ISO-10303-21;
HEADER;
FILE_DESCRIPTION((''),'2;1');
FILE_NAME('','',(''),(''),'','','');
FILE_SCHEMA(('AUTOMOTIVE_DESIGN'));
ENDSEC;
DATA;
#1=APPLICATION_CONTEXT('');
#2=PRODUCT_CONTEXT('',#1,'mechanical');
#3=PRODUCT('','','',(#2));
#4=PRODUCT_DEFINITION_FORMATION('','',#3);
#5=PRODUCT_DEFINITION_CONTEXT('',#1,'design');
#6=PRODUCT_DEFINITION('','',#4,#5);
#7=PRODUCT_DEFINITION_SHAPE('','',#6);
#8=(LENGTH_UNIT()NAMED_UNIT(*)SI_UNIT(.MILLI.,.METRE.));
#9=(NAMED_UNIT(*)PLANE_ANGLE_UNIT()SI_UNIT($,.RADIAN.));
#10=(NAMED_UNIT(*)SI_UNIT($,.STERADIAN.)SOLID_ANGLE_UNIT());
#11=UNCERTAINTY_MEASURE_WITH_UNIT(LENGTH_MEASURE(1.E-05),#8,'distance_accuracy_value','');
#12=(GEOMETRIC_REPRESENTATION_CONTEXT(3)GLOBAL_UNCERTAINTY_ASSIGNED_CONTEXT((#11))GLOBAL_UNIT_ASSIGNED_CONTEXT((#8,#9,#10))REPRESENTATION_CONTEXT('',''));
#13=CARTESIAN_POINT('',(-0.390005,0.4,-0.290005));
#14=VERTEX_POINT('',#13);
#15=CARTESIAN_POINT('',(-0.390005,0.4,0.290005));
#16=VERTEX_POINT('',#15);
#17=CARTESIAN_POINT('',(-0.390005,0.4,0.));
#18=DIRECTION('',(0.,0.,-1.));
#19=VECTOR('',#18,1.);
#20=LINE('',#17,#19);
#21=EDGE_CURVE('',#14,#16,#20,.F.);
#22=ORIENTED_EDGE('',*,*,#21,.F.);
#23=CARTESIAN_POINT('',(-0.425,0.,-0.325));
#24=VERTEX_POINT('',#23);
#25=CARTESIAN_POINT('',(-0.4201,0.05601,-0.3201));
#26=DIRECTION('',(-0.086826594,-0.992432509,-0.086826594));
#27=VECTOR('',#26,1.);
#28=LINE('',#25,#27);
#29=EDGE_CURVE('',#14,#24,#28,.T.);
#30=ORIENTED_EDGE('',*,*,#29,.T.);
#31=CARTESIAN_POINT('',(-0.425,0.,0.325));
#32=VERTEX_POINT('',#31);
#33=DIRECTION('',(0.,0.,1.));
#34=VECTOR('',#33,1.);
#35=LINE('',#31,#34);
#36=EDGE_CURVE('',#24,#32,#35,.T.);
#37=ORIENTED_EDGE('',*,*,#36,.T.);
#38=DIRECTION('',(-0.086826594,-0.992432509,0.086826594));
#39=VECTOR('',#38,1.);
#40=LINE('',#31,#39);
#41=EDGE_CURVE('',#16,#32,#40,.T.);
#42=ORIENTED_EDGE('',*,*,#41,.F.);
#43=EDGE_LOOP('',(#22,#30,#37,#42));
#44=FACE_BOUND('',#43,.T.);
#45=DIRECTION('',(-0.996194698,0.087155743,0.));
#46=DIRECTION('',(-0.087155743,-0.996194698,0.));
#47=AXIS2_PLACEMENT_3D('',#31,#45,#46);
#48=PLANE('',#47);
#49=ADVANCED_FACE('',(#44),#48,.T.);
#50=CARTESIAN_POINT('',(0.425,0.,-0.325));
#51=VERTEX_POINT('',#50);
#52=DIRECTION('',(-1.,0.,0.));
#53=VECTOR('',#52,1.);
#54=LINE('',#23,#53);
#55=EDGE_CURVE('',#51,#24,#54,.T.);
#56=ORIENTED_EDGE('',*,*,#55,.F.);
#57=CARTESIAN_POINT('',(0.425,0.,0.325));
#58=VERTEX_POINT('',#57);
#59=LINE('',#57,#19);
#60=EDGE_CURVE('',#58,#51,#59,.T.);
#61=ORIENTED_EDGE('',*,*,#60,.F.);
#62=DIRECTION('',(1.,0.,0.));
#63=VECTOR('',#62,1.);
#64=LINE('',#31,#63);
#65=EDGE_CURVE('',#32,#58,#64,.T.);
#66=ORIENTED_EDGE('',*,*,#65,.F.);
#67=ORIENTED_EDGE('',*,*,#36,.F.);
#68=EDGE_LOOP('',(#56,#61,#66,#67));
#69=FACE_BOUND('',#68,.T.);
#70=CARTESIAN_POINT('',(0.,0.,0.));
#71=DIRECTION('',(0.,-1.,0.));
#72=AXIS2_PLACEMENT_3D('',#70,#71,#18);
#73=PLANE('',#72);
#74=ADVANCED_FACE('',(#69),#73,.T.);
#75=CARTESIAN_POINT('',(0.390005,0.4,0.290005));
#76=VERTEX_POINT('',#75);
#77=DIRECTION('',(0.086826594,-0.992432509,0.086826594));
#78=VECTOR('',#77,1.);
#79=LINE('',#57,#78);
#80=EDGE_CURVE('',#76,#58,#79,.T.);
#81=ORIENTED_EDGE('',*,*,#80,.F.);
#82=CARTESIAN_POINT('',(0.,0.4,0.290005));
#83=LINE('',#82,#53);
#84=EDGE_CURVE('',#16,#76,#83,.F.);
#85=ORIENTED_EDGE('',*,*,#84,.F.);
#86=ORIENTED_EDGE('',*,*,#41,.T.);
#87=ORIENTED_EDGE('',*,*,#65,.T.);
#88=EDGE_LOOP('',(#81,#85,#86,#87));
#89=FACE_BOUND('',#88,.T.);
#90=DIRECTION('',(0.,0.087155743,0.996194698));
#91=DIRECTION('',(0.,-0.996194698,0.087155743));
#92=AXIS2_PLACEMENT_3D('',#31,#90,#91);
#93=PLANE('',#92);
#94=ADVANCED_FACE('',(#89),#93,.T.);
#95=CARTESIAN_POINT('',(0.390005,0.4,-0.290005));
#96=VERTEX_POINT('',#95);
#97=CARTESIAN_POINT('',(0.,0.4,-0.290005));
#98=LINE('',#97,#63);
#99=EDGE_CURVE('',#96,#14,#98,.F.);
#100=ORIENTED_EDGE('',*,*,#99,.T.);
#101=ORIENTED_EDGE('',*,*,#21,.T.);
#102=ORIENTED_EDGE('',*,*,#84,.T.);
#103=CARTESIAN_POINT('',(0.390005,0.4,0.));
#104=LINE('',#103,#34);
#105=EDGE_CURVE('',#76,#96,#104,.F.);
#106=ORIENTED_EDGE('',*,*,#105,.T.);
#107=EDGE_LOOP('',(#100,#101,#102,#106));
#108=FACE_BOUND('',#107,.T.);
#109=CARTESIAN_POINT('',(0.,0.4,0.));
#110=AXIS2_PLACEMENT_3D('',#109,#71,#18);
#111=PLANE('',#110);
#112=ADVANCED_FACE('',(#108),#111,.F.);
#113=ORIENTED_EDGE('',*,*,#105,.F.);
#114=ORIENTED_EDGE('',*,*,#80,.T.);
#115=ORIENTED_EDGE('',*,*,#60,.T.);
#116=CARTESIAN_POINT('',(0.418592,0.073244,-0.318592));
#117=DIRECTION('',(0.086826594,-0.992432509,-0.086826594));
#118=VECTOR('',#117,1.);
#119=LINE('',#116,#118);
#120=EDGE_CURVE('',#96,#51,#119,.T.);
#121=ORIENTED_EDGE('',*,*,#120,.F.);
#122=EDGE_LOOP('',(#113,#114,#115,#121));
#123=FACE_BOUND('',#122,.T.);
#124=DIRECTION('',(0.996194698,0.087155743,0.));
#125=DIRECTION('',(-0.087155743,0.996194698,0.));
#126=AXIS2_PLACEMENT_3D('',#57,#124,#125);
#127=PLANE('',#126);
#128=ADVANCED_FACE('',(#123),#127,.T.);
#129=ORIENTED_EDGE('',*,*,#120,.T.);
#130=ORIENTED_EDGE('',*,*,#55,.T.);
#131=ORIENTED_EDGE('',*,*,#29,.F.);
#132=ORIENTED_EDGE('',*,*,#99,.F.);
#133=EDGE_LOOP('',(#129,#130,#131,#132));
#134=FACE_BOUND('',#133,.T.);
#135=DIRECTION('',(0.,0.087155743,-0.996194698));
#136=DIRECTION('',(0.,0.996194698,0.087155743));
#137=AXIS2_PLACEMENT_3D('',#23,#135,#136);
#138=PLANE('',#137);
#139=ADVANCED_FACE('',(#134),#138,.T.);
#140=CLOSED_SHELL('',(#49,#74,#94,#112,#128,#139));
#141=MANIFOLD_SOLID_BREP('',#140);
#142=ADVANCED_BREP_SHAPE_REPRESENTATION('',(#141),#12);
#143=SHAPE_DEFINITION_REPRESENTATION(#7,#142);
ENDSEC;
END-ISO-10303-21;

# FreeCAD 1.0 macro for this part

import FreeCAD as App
import Part
import Sketcher
from FreeCAD import Vector
Q = App.Units.Quantity


def add_polygon(sketch, points):
    """Adds a closed chain of lines whose ends are joined by coincident constraints."""
    first, n = sketch.GeometryCount, len(points)
    for a, b in zip(points, points[1:] + points[:1]):
        sketch.addGeometry(Part.LineSegment(App.Vector(*a, 0), App.Vector(*b, 0)), False)
    for i in range(n):
        sketch.addConstraint(Sketcher.Constraint("Coincident", first + i, 2, first + (i + 1) % n, 1))

doc = App.newDocument("Part")
body = doc.addObject("PartDesign::Body", "Body")

sketch1 = doc.addObject("Sketcher::SketchObject", "Sketch")
body.addObject(sketch1)
sketch1.AttachmentSupport = (doc.XZ_Plane, [""])
sketch1.MapMode = "FlatFace"
add_polygon(sketch1, [(-0.425, -0.325), (-0.425, 0.325), (0.425, 0.325), (0.425, -0.325)])
sketch1.addConstraint(Sketcher.Constraint("Vertical", 0))
sketch1.addConstraint(Sketcher.Constraint("Horizontal", 1))
sketch1.addConstraint(Sketcher.Constraint("Vertical", 2))
sketch1.addConstraint(Sketcher.Constraint("Horizontal", 3))
sketch1.addConstraint(Sketcher.Constraint("Symmetric", 0, 2, 2, 2, -1, 1))
sketch1.addConstraint(Sketcher.Constraint("DistanceX", 1, 1, 1, 2, Q("0.85 mm")))
sketch1.addConstraint(Sketcher.Constraint("DistanceY", 0, 1, 0, 2, Q("0.65 mm")))
pad1 = doc.addObject("PartDesign::Pad", "Pad")
body.addObject(pad1)
pad1.Profile = sketch1
pad1.Length = 0.4
pad1.Reversed = True
pad1.TaperAngle = -5

doc.recompute()
